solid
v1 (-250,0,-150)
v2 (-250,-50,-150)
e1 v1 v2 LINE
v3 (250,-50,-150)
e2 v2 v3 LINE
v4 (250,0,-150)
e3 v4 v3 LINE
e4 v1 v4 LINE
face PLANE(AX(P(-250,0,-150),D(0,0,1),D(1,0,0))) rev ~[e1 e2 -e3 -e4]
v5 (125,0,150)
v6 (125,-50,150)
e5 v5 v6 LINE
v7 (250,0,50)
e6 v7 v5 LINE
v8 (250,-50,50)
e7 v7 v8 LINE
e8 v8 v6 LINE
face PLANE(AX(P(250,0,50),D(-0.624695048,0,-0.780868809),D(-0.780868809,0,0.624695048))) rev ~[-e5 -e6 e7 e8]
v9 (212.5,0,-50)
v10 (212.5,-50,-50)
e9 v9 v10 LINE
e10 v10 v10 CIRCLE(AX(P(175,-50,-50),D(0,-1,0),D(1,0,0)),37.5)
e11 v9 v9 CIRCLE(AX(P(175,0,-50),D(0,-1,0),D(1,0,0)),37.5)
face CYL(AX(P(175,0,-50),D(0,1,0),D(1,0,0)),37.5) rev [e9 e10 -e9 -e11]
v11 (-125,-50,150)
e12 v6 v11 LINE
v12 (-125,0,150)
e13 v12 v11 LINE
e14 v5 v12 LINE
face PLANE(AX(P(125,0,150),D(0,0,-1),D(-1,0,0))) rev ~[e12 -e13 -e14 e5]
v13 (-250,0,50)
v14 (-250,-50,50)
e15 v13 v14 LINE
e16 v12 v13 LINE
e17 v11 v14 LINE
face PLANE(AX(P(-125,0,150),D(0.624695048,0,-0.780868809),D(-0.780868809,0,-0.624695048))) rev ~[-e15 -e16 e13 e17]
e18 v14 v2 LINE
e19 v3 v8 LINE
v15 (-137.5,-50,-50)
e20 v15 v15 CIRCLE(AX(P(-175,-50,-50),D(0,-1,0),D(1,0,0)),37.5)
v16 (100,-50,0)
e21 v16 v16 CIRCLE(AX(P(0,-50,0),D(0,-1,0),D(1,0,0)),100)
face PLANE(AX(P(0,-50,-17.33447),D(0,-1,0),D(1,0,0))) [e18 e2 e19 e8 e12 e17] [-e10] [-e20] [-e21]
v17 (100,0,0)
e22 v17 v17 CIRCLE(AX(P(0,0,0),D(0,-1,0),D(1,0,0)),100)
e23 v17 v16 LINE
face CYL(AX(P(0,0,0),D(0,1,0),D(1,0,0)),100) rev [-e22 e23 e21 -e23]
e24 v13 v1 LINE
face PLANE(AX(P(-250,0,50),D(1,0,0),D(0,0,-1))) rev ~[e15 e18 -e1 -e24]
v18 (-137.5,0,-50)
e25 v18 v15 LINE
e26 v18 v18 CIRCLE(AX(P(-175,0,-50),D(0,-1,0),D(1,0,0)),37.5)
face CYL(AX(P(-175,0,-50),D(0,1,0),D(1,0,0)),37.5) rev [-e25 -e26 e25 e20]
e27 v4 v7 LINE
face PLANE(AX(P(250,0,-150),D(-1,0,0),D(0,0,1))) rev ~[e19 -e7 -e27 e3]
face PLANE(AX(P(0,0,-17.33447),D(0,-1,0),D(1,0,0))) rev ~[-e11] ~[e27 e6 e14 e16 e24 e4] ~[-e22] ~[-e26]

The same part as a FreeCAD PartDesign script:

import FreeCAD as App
import Part
import Sketcher
from FreeCAD import Vector

doc = App.newDocument("Part")
body = doc.addObject("PartDesign::Body", "Body")

sketch1 = body.newObject("Sketcher::SketchObject", "Sketch")
sketch1.AttachmentSupport = (doc.getObject("XZ_Plane"), [""])
sketch1.MapMode = "FlatFace"
sketch1.addGeometry([
    Part.LineSegment(Vector(250, 50, 0), Vector(125, 150, 0)),
    Part.LineSegment(Vector(125, 150, 0), Vector(-125, 150, 0)),
    Part.LineSegment(Vector(-125, 150, 0), Vector(-250, 50, 0)),
    Part.LineSegment(Vector(-250, 50, 0), Vector(-250, -150, 0)),
    Part.LineSegment(Vector(-250, -150, 0), Vector(250, -150, 0)),
    Part.LineSegment(Vector(250, -150, 0), Vector(250, 50, 0)),
    Part.Circle(Vector(-175, -50, 0), Vector(0, 0, 1), 38),
    Part.Circle(Vector(175, -50, 0), Vector(0, 0, 1), 38),
    Part.Circle(Vector(0, 0, 0), Vector(0, 0, 1), 100),
], False)
sketch1.addConstraint([
    Sketcher.Constraint("Coincident", 0, 2, 1, 1),
    Sketcher.Constraint("Coincident", 1, 2, 2, 1),
    Sketcher.Constraint("Coincident", 2, 2, 3, 1),
    Sketcher.Constraint("Coincident", 3, 2, 4, 1),
    Sketcher.Constraint("Coincident", 4, 2, 5, 1),
    Sketcher.Constraint("Coincident", 5, 2, 0, 1),
    Sketcher.Constraint("Horizontal", 1),
    Sketcher.Constraint("Vertical", 3),
    Sketcher.Constraint("Horizontal", 4),
    Sketcher.Constraint("Vertical", 5),
    Sketcher.Constraint("Coincident", 8, 3, -1, 1),
    Sketcher.Constraint("Equal", 6, 7),
    Sketcher.Constraint("Symmetric", 6, 3, 7, 3, -2),
    Sketcher.Constraint("Symmetric", 2, 2, 5, 2, -2),
    Sketcher.Constraint("Equal", 0, 2),
    Sketcher.Constraint("Diameter", 6, 75.0),
    Sketcher.Constraint("Diameter", 8, 200.0),
    Sketcher.Constraint("DistanceX", 1, 2, 1, 1, 250.0),
    Sketcher.Constraint("DistanceX", 4, 1, 4, 2, 500.0),
    Sketcher.Constraint("DistanceY", 3, 2, 3, 1, 200.0),
    Sketcher.Constraint("DistanceX", 6, 3, -1, 1, 175.0),
    Sketcher.Constraint("DistanceY", 6, 3, -1, 1, 50.0),
    Sketcher.Constraint("DistanceY", -1, 1, 0, 2, 150.0),
    Sketcher.Constraint("DistanceY", -1, 1, 2, 2, 50.0),
])
pad1 = body.newObject("PartDesign::Pad", "Pad")
pad1.Profile = sketch1
pad1.Length = 50

doc.recompute()
